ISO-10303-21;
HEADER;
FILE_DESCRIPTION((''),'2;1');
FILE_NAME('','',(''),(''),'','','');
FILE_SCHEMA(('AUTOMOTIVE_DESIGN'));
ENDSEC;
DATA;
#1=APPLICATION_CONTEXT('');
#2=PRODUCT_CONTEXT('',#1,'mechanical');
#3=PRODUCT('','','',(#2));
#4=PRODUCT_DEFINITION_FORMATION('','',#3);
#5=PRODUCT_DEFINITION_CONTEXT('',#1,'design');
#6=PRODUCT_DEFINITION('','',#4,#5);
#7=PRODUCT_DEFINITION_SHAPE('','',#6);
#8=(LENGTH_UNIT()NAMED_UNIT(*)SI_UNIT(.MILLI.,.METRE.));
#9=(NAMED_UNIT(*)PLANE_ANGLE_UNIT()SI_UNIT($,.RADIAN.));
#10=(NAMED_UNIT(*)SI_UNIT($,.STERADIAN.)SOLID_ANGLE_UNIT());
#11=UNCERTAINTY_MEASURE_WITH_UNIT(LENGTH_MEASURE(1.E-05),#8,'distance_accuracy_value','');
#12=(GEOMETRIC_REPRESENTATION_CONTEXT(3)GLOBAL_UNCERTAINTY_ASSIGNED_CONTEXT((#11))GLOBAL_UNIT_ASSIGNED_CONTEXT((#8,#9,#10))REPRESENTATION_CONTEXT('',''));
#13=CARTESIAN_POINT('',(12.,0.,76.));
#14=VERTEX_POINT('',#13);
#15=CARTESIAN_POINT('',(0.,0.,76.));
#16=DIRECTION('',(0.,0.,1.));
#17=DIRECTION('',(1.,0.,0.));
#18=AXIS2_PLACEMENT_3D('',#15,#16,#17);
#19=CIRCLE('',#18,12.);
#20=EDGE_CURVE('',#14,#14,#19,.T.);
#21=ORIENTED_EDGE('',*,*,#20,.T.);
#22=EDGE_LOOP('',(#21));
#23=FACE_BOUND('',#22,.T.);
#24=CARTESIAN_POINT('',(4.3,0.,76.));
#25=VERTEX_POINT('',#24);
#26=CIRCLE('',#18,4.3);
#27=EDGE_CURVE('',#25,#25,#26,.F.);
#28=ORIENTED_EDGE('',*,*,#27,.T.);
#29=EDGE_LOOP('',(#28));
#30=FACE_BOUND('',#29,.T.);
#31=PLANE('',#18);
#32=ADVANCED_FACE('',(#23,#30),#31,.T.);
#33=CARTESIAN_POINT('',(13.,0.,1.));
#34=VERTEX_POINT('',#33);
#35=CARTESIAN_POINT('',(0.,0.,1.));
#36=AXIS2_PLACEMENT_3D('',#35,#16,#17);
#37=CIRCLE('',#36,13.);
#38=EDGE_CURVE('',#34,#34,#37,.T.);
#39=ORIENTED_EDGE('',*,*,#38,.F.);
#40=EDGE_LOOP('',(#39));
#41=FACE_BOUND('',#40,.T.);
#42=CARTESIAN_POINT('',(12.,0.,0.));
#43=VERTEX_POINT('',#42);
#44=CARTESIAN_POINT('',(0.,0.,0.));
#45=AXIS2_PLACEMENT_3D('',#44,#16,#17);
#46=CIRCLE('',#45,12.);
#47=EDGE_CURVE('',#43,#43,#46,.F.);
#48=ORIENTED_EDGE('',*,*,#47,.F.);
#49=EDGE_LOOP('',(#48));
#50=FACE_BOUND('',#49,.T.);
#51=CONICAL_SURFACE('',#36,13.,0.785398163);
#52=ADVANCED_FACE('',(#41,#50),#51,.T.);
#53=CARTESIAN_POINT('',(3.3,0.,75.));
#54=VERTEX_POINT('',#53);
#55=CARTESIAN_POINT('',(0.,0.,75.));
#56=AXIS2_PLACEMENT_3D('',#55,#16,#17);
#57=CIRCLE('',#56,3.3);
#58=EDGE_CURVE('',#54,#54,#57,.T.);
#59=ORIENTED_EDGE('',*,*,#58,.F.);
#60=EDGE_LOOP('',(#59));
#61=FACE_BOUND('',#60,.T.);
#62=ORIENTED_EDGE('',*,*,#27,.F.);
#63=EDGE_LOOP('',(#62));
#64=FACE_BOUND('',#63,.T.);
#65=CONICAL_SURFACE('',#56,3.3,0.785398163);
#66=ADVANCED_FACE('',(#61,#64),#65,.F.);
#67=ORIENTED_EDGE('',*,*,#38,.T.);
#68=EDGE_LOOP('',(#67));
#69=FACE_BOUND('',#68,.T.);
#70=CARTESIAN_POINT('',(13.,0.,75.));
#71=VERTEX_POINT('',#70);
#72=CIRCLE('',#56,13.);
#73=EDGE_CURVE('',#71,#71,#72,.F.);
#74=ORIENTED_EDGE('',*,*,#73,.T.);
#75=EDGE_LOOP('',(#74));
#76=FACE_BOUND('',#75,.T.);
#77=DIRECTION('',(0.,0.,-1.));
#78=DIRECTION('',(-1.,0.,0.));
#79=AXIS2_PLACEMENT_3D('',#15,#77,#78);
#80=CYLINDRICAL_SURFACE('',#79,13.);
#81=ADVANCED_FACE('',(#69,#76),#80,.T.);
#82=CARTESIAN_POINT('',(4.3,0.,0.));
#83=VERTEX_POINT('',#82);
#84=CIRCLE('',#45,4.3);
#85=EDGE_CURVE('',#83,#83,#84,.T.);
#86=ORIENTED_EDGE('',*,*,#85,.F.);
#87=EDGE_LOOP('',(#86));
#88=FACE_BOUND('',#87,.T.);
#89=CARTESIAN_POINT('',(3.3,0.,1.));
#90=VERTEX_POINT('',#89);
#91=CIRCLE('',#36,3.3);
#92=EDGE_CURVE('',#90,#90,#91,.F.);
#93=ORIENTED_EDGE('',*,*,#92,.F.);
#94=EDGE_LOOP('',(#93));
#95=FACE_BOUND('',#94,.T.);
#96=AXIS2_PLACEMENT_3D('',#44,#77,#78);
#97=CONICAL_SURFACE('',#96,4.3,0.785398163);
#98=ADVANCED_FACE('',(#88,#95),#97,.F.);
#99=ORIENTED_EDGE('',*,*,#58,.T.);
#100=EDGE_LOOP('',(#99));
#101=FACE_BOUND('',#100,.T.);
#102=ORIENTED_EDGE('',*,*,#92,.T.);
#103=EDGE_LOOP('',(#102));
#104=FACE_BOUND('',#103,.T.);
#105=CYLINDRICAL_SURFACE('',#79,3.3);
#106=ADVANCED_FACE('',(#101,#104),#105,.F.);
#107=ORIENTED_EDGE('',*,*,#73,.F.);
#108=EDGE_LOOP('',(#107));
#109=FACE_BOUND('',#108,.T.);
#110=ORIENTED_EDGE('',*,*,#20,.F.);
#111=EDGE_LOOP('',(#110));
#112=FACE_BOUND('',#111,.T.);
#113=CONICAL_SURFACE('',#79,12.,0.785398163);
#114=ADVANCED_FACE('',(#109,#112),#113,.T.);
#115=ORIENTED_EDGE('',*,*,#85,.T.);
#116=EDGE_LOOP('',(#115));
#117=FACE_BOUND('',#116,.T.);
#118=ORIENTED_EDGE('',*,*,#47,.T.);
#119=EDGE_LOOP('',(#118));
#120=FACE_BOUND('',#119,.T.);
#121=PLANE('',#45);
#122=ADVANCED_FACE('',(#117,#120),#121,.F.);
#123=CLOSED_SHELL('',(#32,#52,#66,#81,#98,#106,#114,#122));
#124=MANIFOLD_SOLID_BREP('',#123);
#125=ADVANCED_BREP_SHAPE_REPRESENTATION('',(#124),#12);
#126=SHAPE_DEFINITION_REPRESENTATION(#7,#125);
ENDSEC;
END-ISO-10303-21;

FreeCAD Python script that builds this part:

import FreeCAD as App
import Part
import Sketcher

V = App.Vector


def edges_at(feature, points):
    """Names of the edges that pass closest to the given points."""
    edges = feature.Shape.Edges
    near = lambda p: min(range(len(edges)), key=lambda i: edges[i].distToShape(Part.Vertex(*p))[0])
    return sorted({f"Edge{near(p) + 1}" for p in points})

doc = App.newDocument("Part")
body = doc.addObject("PartDesign::Body", "Body")

# Sketch on XY plane
sketch1 = body.newObject("Sketcher::SketchObject", "Sketch")
sketch1.AttachmentSupport = (doc.getObject("XY_Plane"), [""])
sketch1.MapMode = "FlatFace"
sketch1.addGeometry([
    Part.Circle(V(0, 0, 0), V(0, 0, 1), 13),
    Part.Circle(V(0, 0, 0), V(0, 0, 1), 3.3),
], False)
sketch1.addConstraint([
    Sketcher.Constraint("Coincident", 0, 3, -1, 1),
    Sketcher.Constraint("Coincident", 1, 3, -1, 1),
    Sketcher.Constraint("Diameter", 0, 26.0),
    Sketcher.Constraint("Diameter", 1, 6.6),
])
pad1 = body.newObject("PartDesign::Pad", "Pad")
pad1.Profile = sketch1
pad1.Length = 76
doc.recompute()

chamfer = body.newObject("PartDesign::Chamfer", "Chamfer")
chamfer.Base = (pad1, edges_at(pad1, [
    (-13, 0, 0),
    (-13, 0, 76),
    (-3.3, 0, 0),
    (-3.3, 0, 76),
]))
chamfer.Size = 1

doc.recompute()
